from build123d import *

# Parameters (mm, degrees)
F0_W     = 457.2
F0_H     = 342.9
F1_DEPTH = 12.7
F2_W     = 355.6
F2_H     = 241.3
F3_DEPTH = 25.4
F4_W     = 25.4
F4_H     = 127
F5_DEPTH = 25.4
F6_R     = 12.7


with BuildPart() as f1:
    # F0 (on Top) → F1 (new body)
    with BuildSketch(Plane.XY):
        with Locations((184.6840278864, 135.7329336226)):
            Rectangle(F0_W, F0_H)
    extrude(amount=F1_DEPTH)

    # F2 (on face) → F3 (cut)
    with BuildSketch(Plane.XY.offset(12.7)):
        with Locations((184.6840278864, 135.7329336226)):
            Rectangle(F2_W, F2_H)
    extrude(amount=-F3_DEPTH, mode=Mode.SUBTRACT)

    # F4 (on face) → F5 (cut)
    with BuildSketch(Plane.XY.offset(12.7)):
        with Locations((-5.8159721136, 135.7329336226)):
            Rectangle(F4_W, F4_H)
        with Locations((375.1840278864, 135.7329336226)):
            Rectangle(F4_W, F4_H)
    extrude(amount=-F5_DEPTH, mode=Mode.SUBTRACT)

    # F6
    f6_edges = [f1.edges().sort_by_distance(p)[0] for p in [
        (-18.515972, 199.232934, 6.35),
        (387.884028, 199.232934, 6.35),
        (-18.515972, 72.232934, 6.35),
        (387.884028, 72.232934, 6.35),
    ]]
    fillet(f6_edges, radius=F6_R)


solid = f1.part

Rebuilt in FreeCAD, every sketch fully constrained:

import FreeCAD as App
import Part
import Sketcher
from FreeCAD import Vector
Q = App.Units.Quantity


def edges_at(feature, points):
    """Names of the edges that pass closest to the given points."""
    edges = feature.Shape.Edges
    near = lambda p: min(range(len(edges)), key=lambda i: edges[i].distToShape(Part.Vertex(*p))[0])
    return sorted({f"Edge{near(p) + 1}" for p in points})


def add_polygon(sketch, points):
    """Adds a closed chain of lines whose ends are joined by coincident constraints."""
    first, n = sketch.GeometryCount, len(points)
    for a, b in zip(points, points[1:] + points[:1]):
        sketch.addGeometry(Part.LineSegment(App.Vector(*a, 0), App.Vector(*b, 0)), False)
    for i in range(n):
        sketch.addConstraint(Sketcher.Constraint("Coincident", first + i, 2, first + (i + 1) % n, 1))

doc = App.newDocument("Part")
body = doc.addObject("PartDesign::Body", "Body")

# Sketch on XY plane
sketch1 = body.newObject("Sketcher::SketchObject", "Sketch")
sketch1.AttachmentSupport = (doc.getObject("XY_Plane"), [""])
sketch1.MapMode = "FlatFace"
add_polygon(sketch1, [(-44, 307), (-44, -36), (413, -36), (413, 307)])  # lines 0-3
sketch1.addConstraint(Sketcher.Constraint("Vertical", 0))
sketch1.addConstraint(Sketcher.Constraint("Horizontal", 1))
sketch1.addConstraint(Sketcher.Constraint("Vertical", 2))
sketch1.addConstraint(Sketcher.Constraint("Horizontal", 3))
sketch1.addConstraint(Sketcher.Constraint("DistanceX", 1, 1, 1, 2, Q("18 in")))
sketch1.addConstraint(Sketcher.Constraint("DistanceY", 0, 2, 0, 1, Q("13.5 in")))
sketch1.addConstraint(Sketcher.Constraint("DistanceX", 0, 2, -1, 1, Q("43.915972 mm")))
sketch1.addConstraint(Sketcher.Constraint("DistanceY", 0, 2, -1, 1, Q("35.717066 mm")))
pad1 = body.newObject("PartDesign::Pad", "Pad")
pad1.Profile = sketch1
pad1.Length = Q("0.5 in")

# Sketch on XY plane
sketch2 = body.newObject("Sketcher::SketchObject", "Sketch001")
sketch2.AttachmentSupport = (doc.getObject("XY_Plane"), [""])
sketch2.MapMode = "FlatFace"
sketch2.AttachmentOffset = App.Placement(Vector(0, 0, 0.5 * 25.4), App.Rotation())
add_polygon(sketch2, [(7, 256), (7, 15), (362, 15), (362, 256)])  # lines 0-3
sketch2.addConstraint(Sketcher.Constraint("Vertical", 0))
sketch2.addConstraint(Sketcher.Constraint("Horizontal", 1))
sketch2.addConstraint(Sketcher.Constraint("Vertical", 2))
sketch2.addConstraint(Sketcher.Constraint("Horizontal", 3))
sketch2.addConstraint(Sketcher.Constraint("DistanceX", 1, 1, 1, 2, Q("14 in")))
sketch2.addConstraint(Sketcher.Constraint("DistanceY", 0, 2, 0, 1, Q("9.5 in")))
sketch2.addConstraint(Sketcher.Constraint("DistanceX", -1, 1, 0, 2, Q("6.884028 mm")))
sketch2.addConstraint(Sketcher.Constraint("DistanceY", -1, 1, 0, 2, Q("15.082934 mm")))
pocket1 = body.newObject("PartDesign::Pocket", "Pocket")
pocket1.Profile = sketch2
pocket1.Length = Q("1 in")

# Sketch on XY plane
sketch3 = body.newObject("Sketcher::SketchObject", "Sketch002")
sketch3.AttachmentSupport = (doc.getObject("XY_Plane"), [""])
sketch3.MapMode = "FlatFace"
sketch3.AttachmentOffset = App.Placement(Vector(0, 0, 0.5 * 25.4), App.Rotation())
add_polygon(sketch3, [(-19, 199), (-19, 72), (7, 72), (7, 199)])  # lines 0-3
add_polygon(sketch3, [(362, 199), (362, 72), (388, 72), (388, 199)])  # lines 4-7
sketch3.addConstraint(Sketcher.Constraint("Vertical", 0))
sketch3.addConstraint(Sketcher.Constraint("Horizontal", 1))
sketch3.addConstraint(Sketcher.Constraint("Vertical", 2))
sketch3.addConstraint(Sketcher.Constraint("Horizontal", 3))
sketch3.addConstraint(Sketcher.Constraint("Vertical", 4))
sketch3.addConstraint(Sketcher.Constraint("Horizontal", 5))
sketch3.addConstraint(Sketcher.Constraint("Vertical", 6))
sketch3.addConstraint(Sketcher.Constraint("Horizontal", 7))
sketch3.addConstraint(Sketcher.Constraint("Horizontal", 1, 2, 4, 2))
sketch3.addConstraint(Sketcher.Constraint("Horizontal", 3, 2, 6, 2))
sketch3.addConstraint(Sketcher.Constraint("Equal", 3, 5))
sketch3.addConstraint(Sketcher.Constraint("DistanceX", 1, 1, 1, 2, Q("1 in")))
sketch3.addConstraint(Sketcher.Constraint("DistanceY", 0, 2, 0, 1, Q("5 in")))
sketch3.addConstraint(Sketcher.Constraint("DistanceX", 1, 2, 4, 2, Q("14 in")))
sketch3.addConstraint(Sketcher.Constraint("DistanceX", 0, 2, -1, 1, Q("18.515972 mm")))
sketch3.addConstraint(Sketcher.Constraint("DistanceY", -1, 1, 0, 2, Q("72.232934 mm")))
pocket2 = body.newObject("PartDesign::Pocket", "Pocket001")
pocket2.Profile = sketch3
pocket2.Length = Q("1 in")
doc.recompute()

fillet = body.newObject("PartDesign::Fillet", "Fillet")
fillet.Base = (pocket2, edges_at(pocket2, [
    (-18.516, 199.233, 6.35),
    (387.884, 199.233, 6.35),
    (-18.516, 72.233, 6.35),
    (387.884, 72.233, 6.35),
]))
fillet.Radius = Q("0.5 in")

doc.recompute()
